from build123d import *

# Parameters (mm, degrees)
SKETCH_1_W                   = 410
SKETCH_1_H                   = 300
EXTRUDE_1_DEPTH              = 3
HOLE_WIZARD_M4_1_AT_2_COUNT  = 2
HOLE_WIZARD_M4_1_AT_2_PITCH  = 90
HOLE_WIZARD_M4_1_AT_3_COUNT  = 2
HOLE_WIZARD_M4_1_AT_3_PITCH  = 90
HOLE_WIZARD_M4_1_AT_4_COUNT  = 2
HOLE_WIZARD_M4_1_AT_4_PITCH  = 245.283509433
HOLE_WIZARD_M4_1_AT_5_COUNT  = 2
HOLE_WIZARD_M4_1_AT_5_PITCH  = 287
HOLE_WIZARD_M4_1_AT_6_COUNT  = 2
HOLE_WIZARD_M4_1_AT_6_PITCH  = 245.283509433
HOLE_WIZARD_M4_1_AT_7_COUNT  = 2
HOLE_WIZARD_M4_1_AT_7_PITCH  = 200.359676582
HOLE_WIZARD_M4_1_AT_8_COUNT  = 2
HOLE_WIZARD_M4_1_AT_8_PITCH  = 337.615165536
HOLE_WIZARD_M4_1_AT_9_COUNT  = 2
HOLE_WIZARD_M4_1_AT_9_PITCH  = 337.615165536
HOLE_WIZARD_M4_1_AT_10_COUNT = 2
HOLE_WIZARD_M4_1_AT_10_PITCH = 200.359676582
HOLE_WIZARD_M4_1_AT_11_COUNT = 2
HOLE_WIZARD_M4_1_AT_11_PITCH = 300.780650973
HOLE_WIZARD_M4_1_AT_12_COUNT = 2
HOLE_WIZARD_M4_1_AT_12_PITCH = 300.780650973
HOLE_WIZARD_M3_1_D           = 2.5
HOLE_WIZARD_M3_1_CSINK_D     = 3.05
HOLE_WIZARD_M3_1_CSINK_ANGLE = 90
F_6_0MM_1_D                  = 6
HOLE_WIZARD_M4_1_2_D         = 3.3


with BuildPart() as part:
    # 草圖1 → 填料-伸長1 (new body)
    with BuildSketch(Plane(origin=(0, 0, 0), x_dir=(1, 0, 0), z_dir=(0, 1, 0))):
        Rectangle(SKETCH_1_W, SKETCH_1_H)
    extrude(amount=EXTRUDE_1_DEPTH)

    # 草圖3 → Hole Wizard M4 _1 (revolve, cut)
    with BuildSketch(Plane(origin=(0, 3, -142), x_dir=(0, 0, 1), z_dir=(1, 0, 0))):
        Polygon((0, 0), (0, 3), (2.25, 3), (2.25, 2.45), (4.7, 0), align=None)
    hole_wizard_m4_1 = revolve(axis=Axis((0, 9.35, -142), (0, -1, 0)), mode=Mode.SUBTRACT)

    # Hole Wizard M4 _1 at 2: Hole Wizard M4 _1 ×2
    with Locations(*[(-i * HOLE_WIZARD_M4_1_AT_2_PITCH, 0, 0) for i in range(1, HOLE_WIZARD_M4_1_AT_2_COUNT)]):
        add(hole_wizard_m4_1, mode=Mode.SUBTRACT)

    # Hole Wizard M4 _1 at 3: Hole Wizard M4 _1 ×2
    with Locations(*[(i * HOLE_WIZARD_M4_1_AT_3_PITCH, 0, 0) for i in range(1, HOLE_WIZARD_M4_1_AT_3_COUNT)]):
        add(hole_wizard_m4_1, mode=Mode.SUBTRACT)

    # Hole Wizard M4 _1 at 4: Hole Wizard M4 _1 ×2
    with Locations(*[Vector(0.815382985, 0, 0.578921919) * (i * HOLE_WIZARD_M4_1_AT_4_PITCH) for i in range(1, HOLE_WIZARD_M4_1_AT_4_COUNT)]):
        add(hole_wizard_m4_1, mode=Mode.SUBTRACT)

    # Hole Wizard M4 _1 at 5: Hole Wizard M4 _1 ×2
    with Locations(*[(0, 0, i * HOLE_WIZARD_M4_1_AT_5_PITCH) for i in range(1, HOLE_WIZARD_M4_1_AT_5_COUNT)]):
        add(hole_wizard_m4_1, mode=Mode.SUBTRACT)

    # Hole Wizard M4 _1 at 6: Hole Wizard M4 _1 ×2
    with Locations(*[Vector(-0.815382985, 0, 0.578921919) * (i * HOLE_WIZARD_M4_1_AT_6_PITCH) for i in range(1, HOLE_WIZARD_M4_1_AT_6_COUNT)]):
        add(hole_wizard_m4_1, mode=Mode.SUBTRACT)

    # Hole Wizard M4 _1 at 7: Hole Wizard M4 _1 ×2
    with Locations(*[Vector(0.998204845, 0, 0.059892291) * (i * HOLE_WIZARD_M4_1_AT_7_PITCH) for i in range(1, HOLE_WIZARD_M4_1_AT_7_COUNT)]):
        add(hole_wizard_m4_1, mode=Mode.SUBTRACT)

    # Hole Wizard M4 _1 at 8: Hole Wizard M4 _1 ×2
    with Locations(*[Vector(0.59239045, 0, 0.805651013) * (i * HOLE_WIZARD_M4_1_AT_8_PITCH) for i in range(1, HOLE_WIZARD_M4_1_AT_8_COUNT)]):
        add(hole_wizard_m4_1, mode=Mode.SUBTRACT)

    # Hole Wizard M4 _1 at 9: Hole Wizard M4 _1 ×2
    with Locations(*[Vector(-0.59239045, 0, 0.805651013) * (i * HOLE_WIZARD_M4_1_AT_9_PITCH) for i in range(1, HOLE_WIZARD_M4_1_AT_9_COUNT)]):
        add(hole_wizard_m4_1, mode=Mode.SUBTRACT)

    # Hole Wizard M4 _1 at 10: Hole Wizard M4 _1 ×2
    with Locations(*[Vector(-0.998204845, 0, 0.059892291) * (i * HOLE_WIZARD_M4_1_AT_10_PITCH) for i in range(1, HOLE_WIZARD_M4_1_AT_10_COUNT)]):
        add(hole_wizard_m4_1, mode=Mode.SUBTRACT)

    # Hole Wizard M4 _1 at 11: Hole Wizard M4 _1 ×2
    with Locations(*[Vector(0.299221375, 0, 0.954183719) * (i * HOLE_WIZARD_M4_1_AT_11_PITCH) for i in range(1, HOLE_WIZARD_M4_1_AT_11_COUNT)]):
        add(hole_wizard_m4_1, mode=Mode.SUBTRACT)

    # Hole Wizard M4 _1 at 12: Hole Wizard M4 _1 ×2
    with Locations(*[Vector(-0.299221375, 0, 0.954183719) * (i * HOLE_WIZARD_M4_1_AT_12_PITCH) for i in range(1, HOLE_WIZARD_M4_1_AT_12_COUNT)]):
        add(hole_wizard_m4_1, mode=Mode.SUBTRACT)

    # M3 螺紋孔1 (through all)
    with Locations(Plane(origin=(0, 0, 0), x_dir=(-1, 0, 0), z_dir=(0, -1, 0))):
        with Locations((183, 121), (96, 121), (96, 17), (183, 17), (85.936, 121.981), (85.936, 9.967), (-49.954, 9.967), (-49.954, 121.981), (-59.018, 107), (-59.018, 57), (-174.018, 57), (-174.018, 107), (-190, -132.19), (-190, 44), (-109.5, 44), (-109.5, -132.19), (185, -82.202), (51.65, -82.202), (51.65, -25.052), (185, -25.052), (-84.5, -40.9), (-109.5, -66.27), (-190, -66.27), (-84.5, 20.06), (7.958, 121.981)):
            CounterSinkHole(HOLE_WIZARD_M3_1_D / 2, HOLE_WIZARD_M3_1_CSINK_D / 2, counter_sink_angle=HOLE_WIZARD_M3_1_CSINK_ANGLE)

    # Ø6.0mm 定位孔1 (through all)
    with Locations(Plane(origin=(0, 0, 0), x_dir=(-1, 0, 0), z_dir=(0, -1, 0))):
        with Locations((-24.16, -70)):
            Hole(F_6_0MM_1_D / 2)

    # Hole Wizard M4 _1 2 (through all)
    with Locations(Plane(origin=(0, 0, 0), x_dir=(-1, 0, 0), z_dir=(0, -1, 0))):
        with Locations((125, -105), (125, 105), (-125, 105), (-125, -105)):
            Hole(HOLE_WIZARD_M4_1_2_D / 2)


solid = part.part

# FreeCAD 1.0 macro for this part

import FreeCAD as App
import Part
import Sketcher
Q = App.Units.Quantity


def add_polygon(sketch, points):
    """Adds a closed chain of lines whose ends are joined by coincident constraints."""
    first, n = sketch.GeometryCount, len(points)
    for a, b in zip(points, points[1:] + points[:1]):
        sketch.addGeometry(Part.LineSegment(App.Vector(*a, 0), App.Vector(*b, 0)), False)
    for i in range(n):
        sketch.addConstraint(Sketcher.Constraint("Coincident", first + i, 2, first + (i + 1) % n, 1))

doc = App.newDocument("Part")
body = doc.addObject("PartDesign::Body", "Body")

# Sketch on XZ plane
sketch1 = body.newObject("Sketcher::SketchObject", "Sketch")
sketch1.AttachmentSupport = (doc.getObject("XZ_Plane"), [""])
sketch1.MapMode = "FlatFace"
add_polygon(sketch1, [(-205, -150), (-205, 150), (205, 150), (205, -150)])  # lines 0-3
sketch1.addConstraint([
    Sketcher.Constraint("Vertical", 0),
    Sketcher.Constraint("Horizontal", 1),
    Sketcher.Constraint("Vertical", 2),
    Sketcher.Constraint("Horizontal", 3),
    Sketcher.Constraint("Symmetric", 0, 2, 2, 2, -1, 1),
    Sketcher.Constraint("DistanceX", 1, 1, 1, 2, Q("410 mm")),
    Sketcher.Constraint("DistanceY", 0, 1, 0, 2, Q("300 mm")),
])
pad1 = body.newObject("PartDesign::Pad", "Pad")
pad1.Profile = sketch1
pad1.Length = 3
pad1.Reversed = True

# Sketch on YZ plane
sketch2 = body.newObject("Sketcher::SketchObject", "Sketch001")
sketch2.AttachmentSupport = (doc.getObject("YZ_Plane"), [""])
sketch2.MapMode = "FlatFace"
add_polygon(sketch2, [(0, -142), (3, -142), (3, -137.3), (0.6, -139.8), (0, -139.8)])  # lines 0-4
sketch2.addGeometry(Part.LineSegment(App.Vector(3, -142, 0), App.Vector(0, -142, 0)), True)  # axis
sketch2.addConstraint([
    Sketcher.Constraint("Horizontal", 0),
    Sketcher.Constraint("Vertical", 1),
    Sketcher.Constraint("Horizontal", 3),
    Sketcher.Constraint("Vertical", 4),
    Sketcher.Constraint("Horizontal", 5),
    Sketcher.Constraint("Coincident", 5, 1, 0, 2),
    Sketcher.Constraint("PointOnObject", 3, 2, -2),
    Sketcher.Constraint("PointOnObject", 5, 2, -2),
    Sketcher.Constraint("DistanceX", 0, 1, 0, 2, Q("3 mm")),
    Sketcher.Constraint("Angle", 2, Q("-135 deg")),
    Sketcher.Constraint("DistanceY", 1, 1, 1, 2, Q("4.7 mm")),
    Sketcher.Constraint("DistanceY", 0, 2, -1, 1, Q("142 mm")),
    Sketcher.Constraint("DistanceX", 3, 2, 3, 1, Q("0.55 mm")),
])
groove = body.newObject("PartDesign::Groove", "Groove")
groove.Profile = sketch2
groove.ReferenceAxis = (sketch2, ["Axis0"])
groove.Angle = 360
doc.recompute()

linearpattern = body.newObject("PartDesign::LinearPattern", "LinearPattern")
linearpattern.Originals = [groove]
linearpattern.Direction = (doc.getObject("X_Axis"), [""])
linearpattern.Mode = "offset"
linearpattern.Offset = 90
linearpattern.Occurrences = 2
linearpattern.Reversed = True
body.Tip = linearpattern
doc.recompute()

linearpattern2 = body.newObject("PartDesign::LinearPattern", "LinearPattern001")
linearpattern2.Originals = [groove]
linearpattern2.Direction = (doc.getObject("X_Axis"), [""])
linearpattern2.Mode = "offset"
linearpattern2.Offset = 90
linearpattern2.Occurrences = 2
body.Tip = linearpattern2
doc.recompute()

datumline = body.newObject("PartDesign::Line", "DatumLine")
datumline.Placement = App.Placement(App.Vector(0, 0, 0), App.Rotation(App.Vector(0, 0, 1), App.Vector(0.815382985, 0, 0.578921919)))
linearpattern3 = body.newObject("PartDesign::LinearPattern", "LinearPattern002")
linearpattern3.Originals = [groove]
linearpattern3.Direction = (datumline, [""])
linearpattern3.Mode = "offset"
linearpattern3.Offset = 245.283509
linearpattern3.Occurrences = 2
body.Tip = linearpattern3
doc.recompute()

linearpattern4 = body.newObject("PartDesign::LinearPattern", "LinearPattern003")
linearpattern4.Originals = [groove]
linearpattern4.Direction = (doc.getObject("Z_Axis"), [""])
linearpattern4.Mode = "offset"
linearpattern4.Offset = 287
linearpattern4.Occurrences = 2
body.Tip = linearpattern4
doc.recompute()

datumline2 = body.newObject("PartDesign::Line", "DatumLine001")
datumline2.Placement = App.Placement(App.Vector(0, 0, 0), App.Rotation(App.Vector(0, 0, 1), App.Vector(-0.815382985, 0, 0.578921919)))
linearpattern5 = body.newObject("PartDesign::LinearPattern", "LinearPattern004")
linearpattern5.Originals = [groove]
linearpattern5.Direction = (datumline2, [""])
linearpattern5.Mode = "offset"
linearpattern5.Offset = 245.283509
linearpattern5.Occurrences = 2
body.Tip = linearpattern5
doc.recompute()

datumline3 = body.newObject("PartDesign::Line", "DatumLine002")
datumline3.Placement = App.Placement(App.Vector(0, 0, 0), App.Rotation(App.Vector(0, 0, 1), App.Vector(0.998204845, 0, 0.059892291)))
linearpattern6 = body.newObject("PartDesign::LinearPattern", "LinearPattern005")
linearpattern6.Originals = [groove]
linearpattern6.Direction = (datumline3, [""])
linearpattern6.Mode = "offset"
linearpattern6.Offset = 200.359676
linearpattern6.Occurrences = 2
body.Tip = linearpattern6
doc.recompute()

datumline4 = body.newObject("PartDesign::Line", "DatumLine003")
datumline4.Placement = App.Placement(App.Vector(0, 0, 0), App.Rotation(App.Vector(0, 0, 1), App.Vector(0.59239045, 0, 0.805651013)))
linearpattern7 = body.newObject("PartDesign::LinearPattern", "LinearPattern006")
linearpattern7.Originals = [groove]
linearpattern7.Direction = (datumline4, [""])
linearpattern7.Mode = "offset"
linearpattern7.Offset = 337.615166
linearpattern7.Occurrences = 2
body.Tip = linearpattern7
doc.recompute()

datumline5 = body.newObject("PartDesign::Line", "DatumLine004")
datumline5.Placement = App.Placement(App.Vector(0, 0, 0), App.Rotation(App.Vector(0, 0, 1), App.Vector(-0.59239045, 0, 0.805651013)))
linearpattern8 = body.newObject("PartDesign::LinearPattern", "LinearPattern007")
linearpattern8.Originals = [groove]
linearpattern8.Direction = (datumline5, [""])
linearpattern8.Mode = "offset"
linearpattern8.Offset = 337.615166
linearpattern8.Occurrences = 2
body.Tip = linearpattern8
doc.recompute()

datumline6 = body.newObject("PartDesign::Line", "DatumLine005")
datumline6.Placement = App.Placement(App.Vector(0, 0, 0), App.Rotation(App.Vector(0, 0, 1), App.Vector(-0.998204845, 0, 0.059892291)))
linearpattern9 = body.newObject("PartDesign::LinearPattern", "LinearPattern008")
linearpattern9.Originals = [groove]
linearpattern9.Direction = (datumline6, [""])
linearpattern9.Mode = "offset"
linearpattern9.Offset = 200.359676
linearpattern9.Occurrences = 2
body.Tip = linearpattern9
doc.recompute()

datumline7 = body.newObject("PartDesign::Line", "DatumLine006")
datumline7.Placement = App.Placement(App.Vector(0, 0, 0), App.Rotation(App.Vector(0, 0, 1), App.Vector(0.299221375, 0, 0.954183719)))
linearpattern10 = body.newObject("PartDesign::LinearPattern", "LinearPattern009")
linearpattern10.Originals = [groove]
linearpattern10.Direction = (datumline7, [""])
linearpattern10.Mode = "offset"
linearpattern10.Offset = 300.780651
linearpattern10.Occurrences = 2
body.Tip = linearpattern10
doc.recompute()

datumline8 = body.newObject("PartDesign::Line", "DatumLine007")
datumline8.Placement = App.Placement(App.Vector(0, 0, 0), App.Rotation(App.Vector(0, 0, 1), App.Vector(-0.299221375, 0, 0.954183719)))
linearpattern11 = body.newObject("PartDesign::LinearPattern", "LinearPattern010")
linearpattern11.Originals = [groove]
linearpattern11.Direction = (datumline8, [""])
linearpattern11.Mode = "offset"
linearpattern11.Offset = 300.780651
linearpattern11.Occurrences = 2
body.Tip = linearpattern11

# Sketch on XZ plane
sketch3 = body.newObject("Sketcher::SketchObject", "Sketch002")
sketch3.AttachmentSupport = (doc.getObject("XZ_Plane"), [""])
sketch3.MapMode = "FlatFace"
sketch3.addGeometry([
    Part.Circle(App.Vector(-183, -121, 0), App.Vector(0, 0, 1), 1.2),  # 0
    Part.Circle(App.Vector(-96, -121, 0), App.Vector(0, 0, 1), 1.2),  # 1
    Part.Circle(App.Vector(-96, -17, 0), App.Vector(0, 0, 1), 1.2),  # 2
    Part.Circle(App.Vector(-183, -17, 0), App.Vector(0, 0, 1), 1.2),  # 3
    Part.Circle(App.Vector(-85.9, -122, 0), App.Vector(0, 0, 1), 1.2),  # 4
    Part.Circle(App.Vector(-85.9, -10, 0), App.Vector(0, 0, 1), 1.2),  # 5
    Part.Circle(App.Vector(50, -10, 0), App.Vector(0, 0, 1), 1.2),  # 6
    Part.Circle(App.Vector(50, -122, 0), App.Vector(0, 0, 1), 1.2),  # 7
    Part.Circle(App.Vector(59, -107, 0), App.Vector(0, 0, 1), 1.2),  # 8
    Part.Circle(App.Vector(59, -57, 0), App.Vector(0, 0, 1), 1.2),  # 9
    Part.Circle(App.Vector(174, -57, 0), App.Vector(0, 0, 1), 1.2),  # 10
    Part.Circle(App.Vector(174, -107, 0), App.Vector(0, 0, 1), 1.2),  # 11
    Part.Circle(App.Vector(190, 132.2, 0), App.Vector(0, 0, 1), 1.2),  # 12
    Part.Circle(App.Vector(190, -44, 0), App.Vector(0, 0, 1), 1.2),  # 13
    Part.Circle(App.Vector(109.5, -44, 0), App.Vector(0, 0, 1), 1.2),  # 14
    Part.Circle(App.Vector(109.5, 132.2, 0), App.Vector(0, 0, 1), 1.2),  # 15
    Part.Circle(App.Vector(-185, 82.2, 0), App.Vector(0, 0, 1), 1.2),  # 16
    Part.Circle(App.Vector(-51.6, 82.2, 0), App.Vector(0, 0, 1), 1.2),  # 17
    Part.Circle(App.Vector(-51.6, 25.1, 0), App.Vector(0, 0, 1), 1.2),  # 18
    Part.Circle(App.Vector(-185, 25.1, 0), App.Vector(0, 0, 1), 1.2),  # 19
    Part.Circle(App.Vector(84.5, 40.9, 0), App.Vector(0, 0, 1), 1.2),  # 20
    Part.Circle(App.Vector(109.5, 66.3, 0), App.Vector(0, 0, 1), 1.2),  # 21
    Part.Circle(App.Vector(190, 66.3, 0), App.Vector(0, 0, 1), 1.2),  # 22
    Part.Circle(App.Vector(84.5, -20.1, 0), App.Vector(0, 0, 1), 1.2),  # 23
    Part.Circle(App.Vector(-8, -122, 0), App.Vector(0, 0, 1), 1.2),  # 24
], False)
sketch3.addConstraint([
    Sketcher.Constraint("Equal", 0, 1),
    Sketcher.Constraint("Equal", 1, 2),
    Sketcher.Constraint("Equal", 2, 3),
    Sketcher.Constraint("Equal", 3, 4),
    Sketcher.Constraint("Equal", 4, 5),
    Sketcher.Constraint("Equal", 5, 6),
    Sketcher.Constraint("Equal", 6, 7),
    Sketcher.Constraint("Equal", 7, 8),
    Sketcher.Constraint("Equal", 8, 9),
    Sketcher.Constraint("Equal", 9, 10),
    Sketcher.Constraint("Equal", 10, 11),
    Sketcher.Constraint("Equal", 11, 12),
    Sketcher.Constraint("Equal", 12, 13),
    Sketcher.Constraint("Equal", 13, 14),
    Sketcher.Constraint("Equal", 14, 15),
    Sketcher.Constraint("Equal", 15, 16),
    Sketcher.Constraint("Equal", 16, 17),
    Sketcher.Constraint("Equal", 17, 18),
    Sketcher.Constraint("Equal", 18, 19),
    Sketcher.Constraint("Equal", 19, 20),
    Sketcher.Constraint("Equal", 20, 21),
    Sketcher.Constraint("Equal", 21, 22),
    Sketcher.Constraint("Equal", 22, 23),
    Sketcher.Constraint("Equal", 23, 24),
    Sketcher.Constraint("Horizontal", 0, 3, 1, 3),
    Sketcher.Constraint("Horizontal", 2, 3, 3, 3),
    Sketcher.Constraint("Horizontal", 5, 3, 6, 3),
    Sketcher.Constraint("Horizontal", 4, 3, 7, 3),
    Sketcher.Constraint("Horizontal", 9, 3, 10, 3),
    Sketcher.Constraint("Horizontal", 8, 3, 11, 3),
    Sketcher.Constraint("Horizontal", 13, 3, 14, 3),
    Sketcher.Constraint("Horizontal", 12, 3, 15, 3),
    Sketcher.Constraint("Horizontal", 16, 3, 17, 3),
    Sketcher.Constraint("Horizontal", 18, 3, 19, 3),
    Sketcher.Constraint("Horizontal", 21, 3, 22, 3),
    Sketcher.Constraint("Horizontal", 7, 3, 24, 3),
    Sketcher.Constraint("Vertical", 1, 3, 2, 3),
    Sketcher.Constraint("Vertical", 0, 3, 3, 3),
    Sketcher.Constraint("Vertical", 4, 3, 5, 3),
    Sketcher.Constraint("Vertical", 6, 3, 7, 3),
    Sketcher.Constraint("Vertical", 8, 3, 9, 3),
    Sketcher.Constraint("Vertical", 10, 3, 11, 3),
    Sketcher.Constraint("Vertical", 12, 3, 13, 3),
    Sketcher.Constraint("Vertical", 14, 3, 15, 3),
    Sketcher.Constraint("Vertical", 17, 3, 18, 3),
    Sketcher.Constraint("Vertical", 16, 3, 19, 3),
    Sketcher.Constraint("Vertical", 15, 3, 21, 3),
    Sketcher.Constraint("Vertical", 13, 3, 22, 3),
    Sketcher.Constraint("Vertical", 20, 3, 23, 3),
    Sketcher.Constraint("Diameter", 0, Q("2.5 mm")),
    Sketcher.Constraint("DistanceX", 0, 3, -1, 1, Q("183 mm")),
    Sketcher.Constraint("DistanceY", 0, 3, -1, 1, Q("121 mm")),
    Sketcher.Constraint("DistanceX", 1, 3, -1, 1, Q("96 mm")),
    Sketcher.Constraint("DistanceY", 2, 3, -1, 1, Q("17 mm")),
    Sketcher.Constraint("DistanceY", 8, 3, -1, 1, Q("107 mm")),
    Sketcher.Constraint("DistanceY", 9, 3, -1, 1, Q("57 mm")),
    Sketcher.Constraint("DistanceX", -1, 1, 12, 3, Q("190 mm")),
    Sketcher.Constraint("DistanceY", 13, 3, -1, 1, Q("44 mm")),
    Sketcher.Constraint("DistanceX", 16, 3, -1, 1, Q("185 mm")),
    Sketcher.Constraint("DistanceX", 9, 3, 10, 3, Q("115 mm")),
    Sketcher.Constraint("DistanceX", 20, 3, 14, 3, Q("25 mm")),
    Sketcher.Constraint("DistanceX", -1, 1, 14, 3, Q("109.5 mm")),
    Sketcher.Constraint("DistanceY", -1, 1, 20, 3, Q("40.9 mm")),
    Sketcher.Constraint("DistanceY", -1, 1, 12, 3, Q("132.19 mm")),
    Sketcher.Constraint("DistanceX", 17, 3, -1, 1, Q("51.65 mm")),
    Sketcher.Constraint("DistanceY", -1, 1, 21, 3, Q("66.27 mm")),
    Sketcher.Constraint("DistanceY", 23, 3, -1, 1, Q("20.06 mm")),
    Sketcher.Constraint("DistanceX", 5, 3, 6, 3, Q("135.89 mm")),
    Sketcher.Constraint("DistanceY", 18, 3, 17, 3, Q("57.15 mm")),
    Sketcher.Constraint("DistanceX", 4, 3, -1, 1, Q("85.936 mm")),
    Sketcher.Constraint("DistanceY", 4, 3, -1, 1, Q("121.981 mm")),
    Sketcher.Constraint("DistanceY", 5, 3, -1, 1, Q("9.967 mm")),
    Sketcher.Constraint("DistanceX", -1, 1, 8, 3, Q("59.018 mm")),
    Sketcher.Constraint("DistanceY", -1, 1, 16, 3, Q("82.202 mm")),
    Sketcher.Constraint("DistanceX", 24, 3, -1, 1, Q("7.958 mm")),
])
doc.recompute()
hole = body.newObject("PartDesign::Hole", "Hole")
hole.Profile = sketch3
hole.ThreadType = "None"
hole.Diameter = 2.5
hole.DepthType = "ThroughAll"
hole.HoleCutType = "Countersink"
hole.HoleCutDiameter = 3.05
hole.HoleCutCountersinkAngle = 90

# Sketch on XZ plane
sketch4 = body.newObject("Sketcher::SketchObject", "Sketch003")
sketch4.AttachmentSupport = (doc.getObject("XZ_Plane"), [""])
sketch4.MapMode = "FlatFace"
sketch4.addGeometry(Part.Circle(App.Vector(24.2, 70, 0), App.Vector(0, 0, 1), 3), False)
sketch4.addConstraint([
    Sketcher.Constraint("Diameter", 0, Q("6 mm")),
    Sketcher.Constraint("DistanceY", -1, 1, 0, 3, Q("70 mm")),
    Sketcher.Constraint("DistanceX", -1, 1, 0, 3, Q("24.16 mm")),
])
doc.recompute()
hole2 = body.newObject("PartDesign::Hole", "Hole001")
hole2.Profile = sketch4
hole2.ThreadType = "None"
hole2.Diameter = 6
hole2.DepthType = "ThroughAll"

# Sketch on XZ plane
sketch5 = body.newObject("Sketcher::SketchObject", "Sketch004")
sketch5.AttachmentSupport = (doc.getObject("XZ_Plane"), [""])
sketch5.MapMode = "FlatFace"
sketch5.addGeometry([
    Part.Circle(App.Vector(-125, 105, 0), App.Vector(0, 0, 1), 1.6),
    Part.Circle(App.Vector(-125, -105, 0), App.Vector(0, 0, 1), 1.6),
    Part.Circle(App.Vector(125, -105, 0), App.Vector(0, 0, 1), 1.6),
    Part.Circle(App.Vector(125, 105, 0), App.Vector(0, 0, 1), 1.6),
], False)
sketch5.addConstraint([
    Sketcher.Constraint("Equal", 0, 1),
    Sketcher.Constraint("Equal", 1, 2),
    Sketcher.Constraint("Equal", 2, 3),
    Sketcher.Constraint("Symmetric", 0, 3, 2, 3, -1, 1),
    Sketcher.Constraint("Symmetric", 1, 3, 3, 3, -1, 1),
    Sketcher.Constraint("Symmetric", 1, 3, 2, 3, -2),
    Sketcher.Constraint("Diameter", 0, Q("3.3 mm")),
    Sketcher.Constraint("DistanceX", 0, 3, -1, 1, Q("125 mm")),
    Sketcher.Constraint("DistanceY", -1, 1, 0, 3, Q("105 mm")),
])
doc.recompute()
hole3 = body.newObject("PartDesign::Hole", "Hole002")
hole3.Profile = sketch5
hole3.ThreadType = "None"
hole3.Diameter = 3.3
hole3.DepthType = "ThroughAll"

doc.recompute()
